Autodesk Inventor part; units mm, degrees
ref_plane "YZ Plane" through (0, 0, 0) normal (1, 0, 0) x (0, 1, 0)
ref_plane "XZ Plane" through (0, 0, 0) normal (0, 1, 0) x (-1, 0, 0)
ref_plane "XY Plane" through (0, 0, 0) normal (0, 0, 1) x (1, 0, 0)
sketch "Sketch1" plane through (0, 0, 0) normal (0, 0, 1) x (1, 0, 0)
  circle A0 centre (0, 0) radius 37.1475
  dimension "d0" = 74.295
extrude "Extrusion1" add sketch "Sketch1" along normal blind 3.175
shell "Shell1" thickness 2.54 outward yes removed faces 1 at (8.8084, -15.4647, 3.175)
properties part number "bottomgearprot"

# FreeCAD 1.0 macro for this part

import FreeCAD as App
import Part
import Sketcher

V = App.Vector
Q = App.Units.Quantity


def faces_at(feature, points):
    """Names of the faces that lie closest to the given points."""
    faces = feature.Shape.Faces
    near = lambda p: min(range(len(faces)), key=lambda i: faces[i].distToShape(Part.Vertex(*p))[0])
    return sorted({f"Face{near(p) + 1}" for p in points})

doc = App.newDocument("Part")
body = doc.addObject("PartDesign::Body", "Body")

sketch1 = body.newObject("Sketcher::SketchObject", "Sketch")
sketch1.AttachmentSupport = (doc.getObject("XY_Plane"), [""])
sketch1.MapMode = "FlatFace"
sketch1.addGeometry(Part.Circle(V(0, 0, 0), V(0, 0, 1), 37), False)
sketch1.addConstraint([
    Sketcher.Constraint("Coincident", 0, 3, -1, 1),
    Sketcher.Constraint("Diameter", 0, Q("2.925 in")),
])
pad1 = body.newObject("PartDesign::Pad", "Pad")
pad1.Profile = sketch1
pad1.Length = Q("0.125 in")
doc.recompute()

thickness = body.newObject("PartDesign::Thickness", "Thickness")
thickness.Base = (pad1, faces_at(pad1, [(8.808, -15.465, 3.175)]))
thickness.Value = Q("0.1 in")
thickness.Reversed = False
thickness.Join = "Intersection"

doc.recompute()
